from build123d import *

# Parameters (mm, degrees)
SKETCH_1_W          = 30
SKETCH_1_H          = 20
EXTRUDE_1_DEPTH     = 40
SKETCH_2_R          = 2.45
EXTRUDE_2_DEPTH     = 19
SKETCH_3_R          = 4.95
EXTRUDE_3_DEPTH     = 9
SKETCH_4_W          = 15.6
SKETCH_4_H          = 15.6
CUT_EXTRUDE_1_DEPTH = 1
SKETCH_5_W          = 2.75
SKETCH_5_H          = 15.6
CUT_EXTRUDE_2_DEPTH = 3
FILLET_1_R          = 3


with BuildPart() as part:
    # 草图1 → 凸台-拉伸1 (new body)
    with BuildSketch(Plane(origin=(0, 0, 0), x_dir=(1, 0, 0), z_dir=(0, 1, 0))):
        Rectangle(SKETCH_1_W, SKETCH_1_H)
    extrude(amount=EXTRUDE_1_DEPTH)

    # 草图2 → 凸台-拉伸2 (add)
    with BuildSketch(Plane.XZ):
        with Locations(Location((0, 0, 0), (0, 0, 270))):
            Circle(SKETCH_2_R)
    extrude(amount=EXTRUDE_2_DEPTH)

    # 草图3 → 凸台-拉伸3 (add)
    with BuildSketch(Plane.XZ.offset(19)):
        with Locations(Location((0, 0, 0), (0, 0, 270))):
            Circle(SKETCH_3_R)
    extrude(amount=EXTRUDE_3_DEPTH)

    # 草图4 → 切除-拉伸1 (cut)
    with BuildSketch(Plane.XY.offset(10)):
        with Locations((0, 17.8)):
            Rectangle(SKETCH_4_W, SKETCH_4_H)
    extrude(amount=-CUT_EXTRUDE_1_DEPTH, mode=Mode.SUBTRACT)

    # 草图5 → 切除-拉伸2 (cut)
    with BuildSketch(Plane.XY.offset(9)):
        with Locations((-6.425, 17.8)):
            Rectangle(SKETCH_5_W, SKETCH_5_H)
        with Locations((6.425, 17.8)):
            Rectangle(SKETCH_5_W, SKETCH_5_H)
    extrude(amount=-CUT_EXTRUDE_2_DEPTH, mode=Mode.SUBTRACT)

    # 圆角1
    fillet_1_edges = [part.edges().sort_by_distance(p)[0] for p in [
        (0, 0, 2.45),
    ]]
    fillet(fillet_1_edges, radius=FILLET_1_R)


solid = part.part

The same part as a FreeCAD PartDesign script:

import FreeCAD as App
import Part
import Sketcher


def edges_at(feature, points):
    """Names of the edges that pass closest to the given points."""
    edges = feature.Shape.Edges
    near = lambda p: min(range(len(edges)), key=lambda i: edges[i].distToShape(Part.Vertex(*p))[0])
    return sorted({f"Edge{near(p) + 1}" for p in points})

doc = App.newDocument("Part")
params = doc.addObject("Spreadsheet::Sheet", "Params")
for row, (alias, value) in enumerate([
    ("sketch1_width", "30 mm"),
    ("sketch1_height", "20 mm"),
    ("pad1_length", "40 mm"),
    ("sketch2_diameter", "4.9 mm"),
    ("pad2_length", "19 mm"),
    ("sketch3_diameter", "9.9 mm"),
    ("pad3_length", "9 mm"),
    ("sketch4_width", "15.6 mm"),
    ("pocket1_length", "1 mm"),
    ("sketch5_height", "15.6 mm"),
    ("sketch5_width", "2.75 mm"),
    ("pocket2_length", "3 mm"),
    ("fillet_radius", "3 mm"),
], start=1):
    params.set(f"A{row}", alias)
    params.set(f"B{row}", "=" + value)
    params.setAlias(f"B{row}", alias)

body = doc.addObject("PartDesign::Body", "Body")

sketch1 = doc.addObject("Sketcher::SketchObject", "Sketch")
body.addObject(sketch1)
sketch1.AttachmentSupport = (doc.XZ_Plane, [""])
sketch1.MapMode = "FlatFace"
sketch1.addGeometry([
    Part.LineSegment(App.Vector(-15, -10, 0), App.Vector(-15, 10, 0)),
    Part.LineSegment(App.Vector(-15, 10, 0), App.Vector(15, 10, 0)),
    Part.LineSegment(App.Vector(15, 10, 0), App.Vector(15, -10, 0)),
    Part.LineSegment(App.Vector(15, -10, 0), App.Vector(-15, -10, 0)),
], False)
sketch1.addConstraint([
    Sketcher.Constraint("Coincident", 0, 2, 1, 1),
    Sketcher.Constraint("Coincident", 1, 2, 2, 1),
    Sketcher.Constraint("Coincident", 2, 2, 3, 1),
    Sketcher.Constraint("Coincident", 3, 2, 0, 1),
    Sketcher.Constraint("Vertical", 0),
    Sketcher.Constraint("Horizontal", 1),
    Sketcher.Constraint("Vertical", 2),
    Sketcher.Constraint("Horizontal", 3),
    Sketcher.Constraint("Symmetric", 0, 2, 2, 2, -1, 1),
    Sketcher.Constraint("DistanceX", 1, 1, 1, 2, 30.0),
    Sketcher.Constraint("DistanceY", 0, 1, 0, 2, 20.0),
])
sketch1.setExpression("Constraints[9]", "Params.sketch1_width")
sketch1.setExpression("Constraints[10]", "Params.sketch1_height")
pad1 = doc.addObject("PartDesign::Pad", "Pad")
body.addObject(pad1)
pad1.Profile = sketch1
pad1.setExpression("Length", "Params.pad1_length")
pad1.Reversed = True

sketch2 = doc.addObject("Sketcher::SketchObject", "Sketch001")
body.addObject(sketch2)
sketch2.AttachmentSupport = (doc.XZ_Plane, [""])
sketch2.MapMode = "FlatFace"
sketch2.addGeometry(Part.Circle(App.Vector(0, 0, 0), App.Vector(0, 0, 1), 2.45), False)
sketch2.addConstraint([
    Sketcher.Constraint("Coincident", 0, 3, -1, 1),
    Sketcher.Constraint("Diameter", 0, 4.9),
])
sketch2.setExpression("Constraints[1]", "Params.sketch2_diameter")
pad2 = doc.addObject("PartDesign::Pad", "Pad001")
body.addObject(pad2)
pad2.Profile = sketch2
pad2.setExpression("Length", "Params.pad2_length")

sketch3 = doc.addObject("Sketcher::SketchObject", "Sketch002")
body.addObject(sketch3)
sketch3.AttachmentSupport = (doc.XZ_Plane, [""])
sketch3.MapMode = "FlatFace"
sketch3.AttachmentOffset = App.Placement(App.Vector(0, 0, 19), App.Rotation())
sketch3.addGeometry(Part.Circle(App.Vector(0, 0, 0), App.Vector(0, 0, 1), 4.95), False)
sketch3.addConstraint([
    Sketcher.Constraint("Coincident", 0, 3, -1, 1),
    Sketcher.Constraint("Diameter", 0, 9.9),
])
sketch3.setExpression("Constraints[1]", "Params.sketch3_diameter")
pad3 = doc.addObject("PartDesign::Pad", "Pad002")
body.addObject(pad3)
pad3.Profile = sketch3
pad3.setExpression("Length", "Params.pad3_length")

sketch4 = doc.addObject("Sketcher::SketchObject", "Sketch003")
body.addObject(sketch4)
sketch4.AttachmentSupport = (doc.XY_Plane, [""])
sketch4.MapMode = "FlatFace"
sketch4.AttachmentOffset = App.Placement(App.Vector(0, 0, 10), App.Rotation())
sketch4.addGeometry([
    Part.LineSegment(App.Vector(-7.8, 25.6, 0), App.Vector(-7.8, 10, 0)),
    Part.LineSegment(App.Vector(-7.8, 10, 0), App.Vector(7.8, 10, 0)),
    Part.LineSegment(App.Vector(7.8, 10, 0), App.Vector(7.8, 25.6, 0)),
    Part.LineSegment(App.Vector(7.8, 25.6, 0), App.Vector(-7.8, 25.6, 0)),
], False)
sketch4.addConstraint([
    Sketcher.Constraint("Coincident", 0, 2, 1, 1),
    Sketcher.Constraint("Coincident", 1, 2, 2, 1),
    Sketcher.Constraint("Coincident", 2, 2, 3, 1),
    Sketcher.Constraint("Coincident", 3, 2, 0, 1),
    Sketcher.Constraint("Vertical", 0),
    Sketcher.Constraint("Horizontal", 1),
    Sketcher.Constraint("Vertical", 2),
    Sketcher.Constraint("Horizontal", 3),
    Sketcher.Constraint("Equal", 3, 0),
    Sketcher.Constraint("DistanceX", 1, 1, 1, 2, 15.6),
    Sketcher.Constraint("DistanceY", -1, 1, 0, 2, 10.0),
    Sketcher.Constraint("DistanceX", 0, 2, -1, 1, 7.8),
])
sketch4.setExpression("Constraints[9]", "Params.sketch4_width")
pocket1 = doc.addObject("PartDesign::Pocket", "Pocket")
body.addObject(pocket1)
pocket1.Profile = sketch4
pocket1.setExpression("Length", "Params.pocket1_length")

sketch5 = doc.addObject("Sketcher::SketchObject", "Sketch004")
body.addObject(sketch5)
sketch5.AttachmentSupport = (doc.XY_Plane, [""])
sketch5.MapMode = "FlatFace"
sketch5.AttachmentOffset = App.Placement(App.Vector(0, 0, 9), App.Rotation())
sketch5.addGeometry([
    Part.LineSegment(App.Vector(-7.8, 25.6, 0), App.Vector(-7.8, 10, 0)),
    Part.LineSegment(App.Vector(-7.8, 10, 0), App.Vector(-5.05, 10, 0)),
    Part.LineSegment(App.Vector(-5.05, 10, 0), App.Vector(-5.05, 25.6, 0)),
    Part.LineSegment(App.Vector(-5.05, 25.6, 0), App.Vector(-7.8, 25.6, 0)),
    Part.LineSegment(App.Vector(5.05, 25.6, 0), App.Vector(5.05, 10, 0)),
    Part.LineSegment(App.Vector(5.05, 10, 0), App.Vector(7.8, 10, 0)),
    Part.LineSegment(App.Vector(7.8, 10, 0), App.Vector(7.8, 25.6, 0)),
    Part.LineSegment(App.Vector(7.8, 25.6, 0), App.Vector(5.05, 25.6, 0)),
], False)
sketch5.addConstraint([
    Sketcher.Constraint("Coincident", 0, 2, 1, 1),
    Sketcher.Constraint("Coincident", 1, 2, 2, 1),
    Sketcher.Constraint("Coincident", 2, 2, 3, 1),
    Sketcher.Constraint("Coincident", 3, 2, 0, 1),
    Sketcher.Constraint("Coincident", 4, 2, 5, 1),
    Sketcher.Constraint("Coincident", 5, 2, 6, 1),
    Sketcher.Constraint("Coincident", 6, 2, 7, 1),
    Sketcher.Constraint("Coincident", 7, 2, 4, 1),
    Sketcher.Constraint("Vertical", 0),
    Sketcher.Constraint("Horizontal", 1),
    Sketcher.Constraint("Vertical", 2),
    Sketcher.Constraint("Horizontal", 3),
    Sketcher.Constraint("Vertical", 4),
    Sketcher.Constraint("Horizontal", 5),
    Sketcher.Constraint("Vertical", 6),
    Sketcher.Constraint("Horizontal", 7),
    Sketcher.Constraint("Symmetric", 1, 2, 4, 2, -2),
    Sketcher.Constraint("Symmetric", 3, 2, 6, 2, -2),
    Sketcher.Constraint("DistanceY", 0, 2, 0, 1, 15.6),
    Sketcher.Constraint("DistanceY", -1, 1, 0, 2, 10.0),
    Sketcher.Constraint("DistanceX", 1, 1, 1, 2, 2.75),
    Sketcher.Constraint("DistanceX", 0, 2, -1, 1, 7.8),
])
sketch5.setExpression("Constraints[18]", "Params.sketch5_height")
sketch5.setExpression("Constraints[20]", "Params.sketch5_width")
pocket2 = doc.addObject("PartDesign::Pocket", "Pocket001")
body.addObject(pocket2)
pocket2.Profile = sketch5
pocket2.setExpression("Length", "Params.pocket2_length")
doc.recompute()

fillet = doc.addObject("PartDesign::Fillet", "Fillet")
body.addObject(fillet)
fillet.Base = (pocket2, edges_at(pocket2, [(0, 0, 2.45)]))
fillet.setExpression("Radius", "Params.fillet_radius")

doc.recompute()
